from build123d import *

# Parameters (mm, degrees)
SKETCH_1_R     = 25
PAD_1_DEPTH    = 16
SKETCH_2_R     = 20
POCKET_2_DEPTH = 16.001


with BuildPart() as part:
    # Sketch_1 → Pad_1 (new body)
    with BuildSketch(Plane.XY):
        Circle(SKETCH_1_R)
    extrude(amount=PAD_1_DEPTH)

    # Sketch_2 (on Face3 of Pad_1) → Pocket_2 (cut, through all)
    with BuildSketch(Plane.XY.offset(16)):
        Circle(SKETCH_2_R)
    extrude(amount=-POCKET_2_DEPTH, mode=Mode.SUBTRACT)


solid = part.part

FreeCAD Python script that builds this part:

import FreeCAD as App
import Part
import Sketcher
from FreeCAD import Vector

doc = App.newDocument("Part")
body = doc.addObject("PartDesign::Body", "Body")

sketch1 = doc.addObject("Sketcher::SketchObject", "Sketch")
body.addObject(sketch1)
sketch1.AttachmentSupport = (doc.XY_Plane, [""])
sketch1.MapMode = "FlatFace"
sketch1.addGeometry(Part.Circle(Vector(0, 0, 0), Vector(0, 0, 1), 25), False)
sketch1.addConstraint([
    Sketcher.Constraint("Coincident", 0, 3, -1, 1),
    Sketcher.Constraint("Diameter", 0, 50.0),
])
pad1 = doc.addObject("PartDesign::Pad", "Pad")
body.addObject(pad1)
pad1.Profile = sketch1
pad1.Length = 16

sketch2 = doc.addObject("Sketcher::SketchObject", "Sketch001")
body.addObject(sketch2)
sketch2.AttachmentSupport = (doc.XY_Plane, [""])
sketch2.MapMode = "FlatFace"
sketch2.AttachmentOffset = App.Placement(Vector(0, 0, 16), App.Rotation())
sketch2.addGeometry(Part.Circle(Vector(0, 0, 0), Vector(0, 0, 1), 20), False)
sketch2.addConstraint([
    Sketcher.Constraint("Coincident", 0, 3, -1, 1),
    Sketcher.Constraint("Diameter", 0, 40.0),
])
pocket1 = doc.addObject("PartDesign::Pocket", "Pocket")
body.addObject(pocket1)
pocket1.Profile = sketch2
pocket1.Type = "ThroughAll"

doc.recompute()
